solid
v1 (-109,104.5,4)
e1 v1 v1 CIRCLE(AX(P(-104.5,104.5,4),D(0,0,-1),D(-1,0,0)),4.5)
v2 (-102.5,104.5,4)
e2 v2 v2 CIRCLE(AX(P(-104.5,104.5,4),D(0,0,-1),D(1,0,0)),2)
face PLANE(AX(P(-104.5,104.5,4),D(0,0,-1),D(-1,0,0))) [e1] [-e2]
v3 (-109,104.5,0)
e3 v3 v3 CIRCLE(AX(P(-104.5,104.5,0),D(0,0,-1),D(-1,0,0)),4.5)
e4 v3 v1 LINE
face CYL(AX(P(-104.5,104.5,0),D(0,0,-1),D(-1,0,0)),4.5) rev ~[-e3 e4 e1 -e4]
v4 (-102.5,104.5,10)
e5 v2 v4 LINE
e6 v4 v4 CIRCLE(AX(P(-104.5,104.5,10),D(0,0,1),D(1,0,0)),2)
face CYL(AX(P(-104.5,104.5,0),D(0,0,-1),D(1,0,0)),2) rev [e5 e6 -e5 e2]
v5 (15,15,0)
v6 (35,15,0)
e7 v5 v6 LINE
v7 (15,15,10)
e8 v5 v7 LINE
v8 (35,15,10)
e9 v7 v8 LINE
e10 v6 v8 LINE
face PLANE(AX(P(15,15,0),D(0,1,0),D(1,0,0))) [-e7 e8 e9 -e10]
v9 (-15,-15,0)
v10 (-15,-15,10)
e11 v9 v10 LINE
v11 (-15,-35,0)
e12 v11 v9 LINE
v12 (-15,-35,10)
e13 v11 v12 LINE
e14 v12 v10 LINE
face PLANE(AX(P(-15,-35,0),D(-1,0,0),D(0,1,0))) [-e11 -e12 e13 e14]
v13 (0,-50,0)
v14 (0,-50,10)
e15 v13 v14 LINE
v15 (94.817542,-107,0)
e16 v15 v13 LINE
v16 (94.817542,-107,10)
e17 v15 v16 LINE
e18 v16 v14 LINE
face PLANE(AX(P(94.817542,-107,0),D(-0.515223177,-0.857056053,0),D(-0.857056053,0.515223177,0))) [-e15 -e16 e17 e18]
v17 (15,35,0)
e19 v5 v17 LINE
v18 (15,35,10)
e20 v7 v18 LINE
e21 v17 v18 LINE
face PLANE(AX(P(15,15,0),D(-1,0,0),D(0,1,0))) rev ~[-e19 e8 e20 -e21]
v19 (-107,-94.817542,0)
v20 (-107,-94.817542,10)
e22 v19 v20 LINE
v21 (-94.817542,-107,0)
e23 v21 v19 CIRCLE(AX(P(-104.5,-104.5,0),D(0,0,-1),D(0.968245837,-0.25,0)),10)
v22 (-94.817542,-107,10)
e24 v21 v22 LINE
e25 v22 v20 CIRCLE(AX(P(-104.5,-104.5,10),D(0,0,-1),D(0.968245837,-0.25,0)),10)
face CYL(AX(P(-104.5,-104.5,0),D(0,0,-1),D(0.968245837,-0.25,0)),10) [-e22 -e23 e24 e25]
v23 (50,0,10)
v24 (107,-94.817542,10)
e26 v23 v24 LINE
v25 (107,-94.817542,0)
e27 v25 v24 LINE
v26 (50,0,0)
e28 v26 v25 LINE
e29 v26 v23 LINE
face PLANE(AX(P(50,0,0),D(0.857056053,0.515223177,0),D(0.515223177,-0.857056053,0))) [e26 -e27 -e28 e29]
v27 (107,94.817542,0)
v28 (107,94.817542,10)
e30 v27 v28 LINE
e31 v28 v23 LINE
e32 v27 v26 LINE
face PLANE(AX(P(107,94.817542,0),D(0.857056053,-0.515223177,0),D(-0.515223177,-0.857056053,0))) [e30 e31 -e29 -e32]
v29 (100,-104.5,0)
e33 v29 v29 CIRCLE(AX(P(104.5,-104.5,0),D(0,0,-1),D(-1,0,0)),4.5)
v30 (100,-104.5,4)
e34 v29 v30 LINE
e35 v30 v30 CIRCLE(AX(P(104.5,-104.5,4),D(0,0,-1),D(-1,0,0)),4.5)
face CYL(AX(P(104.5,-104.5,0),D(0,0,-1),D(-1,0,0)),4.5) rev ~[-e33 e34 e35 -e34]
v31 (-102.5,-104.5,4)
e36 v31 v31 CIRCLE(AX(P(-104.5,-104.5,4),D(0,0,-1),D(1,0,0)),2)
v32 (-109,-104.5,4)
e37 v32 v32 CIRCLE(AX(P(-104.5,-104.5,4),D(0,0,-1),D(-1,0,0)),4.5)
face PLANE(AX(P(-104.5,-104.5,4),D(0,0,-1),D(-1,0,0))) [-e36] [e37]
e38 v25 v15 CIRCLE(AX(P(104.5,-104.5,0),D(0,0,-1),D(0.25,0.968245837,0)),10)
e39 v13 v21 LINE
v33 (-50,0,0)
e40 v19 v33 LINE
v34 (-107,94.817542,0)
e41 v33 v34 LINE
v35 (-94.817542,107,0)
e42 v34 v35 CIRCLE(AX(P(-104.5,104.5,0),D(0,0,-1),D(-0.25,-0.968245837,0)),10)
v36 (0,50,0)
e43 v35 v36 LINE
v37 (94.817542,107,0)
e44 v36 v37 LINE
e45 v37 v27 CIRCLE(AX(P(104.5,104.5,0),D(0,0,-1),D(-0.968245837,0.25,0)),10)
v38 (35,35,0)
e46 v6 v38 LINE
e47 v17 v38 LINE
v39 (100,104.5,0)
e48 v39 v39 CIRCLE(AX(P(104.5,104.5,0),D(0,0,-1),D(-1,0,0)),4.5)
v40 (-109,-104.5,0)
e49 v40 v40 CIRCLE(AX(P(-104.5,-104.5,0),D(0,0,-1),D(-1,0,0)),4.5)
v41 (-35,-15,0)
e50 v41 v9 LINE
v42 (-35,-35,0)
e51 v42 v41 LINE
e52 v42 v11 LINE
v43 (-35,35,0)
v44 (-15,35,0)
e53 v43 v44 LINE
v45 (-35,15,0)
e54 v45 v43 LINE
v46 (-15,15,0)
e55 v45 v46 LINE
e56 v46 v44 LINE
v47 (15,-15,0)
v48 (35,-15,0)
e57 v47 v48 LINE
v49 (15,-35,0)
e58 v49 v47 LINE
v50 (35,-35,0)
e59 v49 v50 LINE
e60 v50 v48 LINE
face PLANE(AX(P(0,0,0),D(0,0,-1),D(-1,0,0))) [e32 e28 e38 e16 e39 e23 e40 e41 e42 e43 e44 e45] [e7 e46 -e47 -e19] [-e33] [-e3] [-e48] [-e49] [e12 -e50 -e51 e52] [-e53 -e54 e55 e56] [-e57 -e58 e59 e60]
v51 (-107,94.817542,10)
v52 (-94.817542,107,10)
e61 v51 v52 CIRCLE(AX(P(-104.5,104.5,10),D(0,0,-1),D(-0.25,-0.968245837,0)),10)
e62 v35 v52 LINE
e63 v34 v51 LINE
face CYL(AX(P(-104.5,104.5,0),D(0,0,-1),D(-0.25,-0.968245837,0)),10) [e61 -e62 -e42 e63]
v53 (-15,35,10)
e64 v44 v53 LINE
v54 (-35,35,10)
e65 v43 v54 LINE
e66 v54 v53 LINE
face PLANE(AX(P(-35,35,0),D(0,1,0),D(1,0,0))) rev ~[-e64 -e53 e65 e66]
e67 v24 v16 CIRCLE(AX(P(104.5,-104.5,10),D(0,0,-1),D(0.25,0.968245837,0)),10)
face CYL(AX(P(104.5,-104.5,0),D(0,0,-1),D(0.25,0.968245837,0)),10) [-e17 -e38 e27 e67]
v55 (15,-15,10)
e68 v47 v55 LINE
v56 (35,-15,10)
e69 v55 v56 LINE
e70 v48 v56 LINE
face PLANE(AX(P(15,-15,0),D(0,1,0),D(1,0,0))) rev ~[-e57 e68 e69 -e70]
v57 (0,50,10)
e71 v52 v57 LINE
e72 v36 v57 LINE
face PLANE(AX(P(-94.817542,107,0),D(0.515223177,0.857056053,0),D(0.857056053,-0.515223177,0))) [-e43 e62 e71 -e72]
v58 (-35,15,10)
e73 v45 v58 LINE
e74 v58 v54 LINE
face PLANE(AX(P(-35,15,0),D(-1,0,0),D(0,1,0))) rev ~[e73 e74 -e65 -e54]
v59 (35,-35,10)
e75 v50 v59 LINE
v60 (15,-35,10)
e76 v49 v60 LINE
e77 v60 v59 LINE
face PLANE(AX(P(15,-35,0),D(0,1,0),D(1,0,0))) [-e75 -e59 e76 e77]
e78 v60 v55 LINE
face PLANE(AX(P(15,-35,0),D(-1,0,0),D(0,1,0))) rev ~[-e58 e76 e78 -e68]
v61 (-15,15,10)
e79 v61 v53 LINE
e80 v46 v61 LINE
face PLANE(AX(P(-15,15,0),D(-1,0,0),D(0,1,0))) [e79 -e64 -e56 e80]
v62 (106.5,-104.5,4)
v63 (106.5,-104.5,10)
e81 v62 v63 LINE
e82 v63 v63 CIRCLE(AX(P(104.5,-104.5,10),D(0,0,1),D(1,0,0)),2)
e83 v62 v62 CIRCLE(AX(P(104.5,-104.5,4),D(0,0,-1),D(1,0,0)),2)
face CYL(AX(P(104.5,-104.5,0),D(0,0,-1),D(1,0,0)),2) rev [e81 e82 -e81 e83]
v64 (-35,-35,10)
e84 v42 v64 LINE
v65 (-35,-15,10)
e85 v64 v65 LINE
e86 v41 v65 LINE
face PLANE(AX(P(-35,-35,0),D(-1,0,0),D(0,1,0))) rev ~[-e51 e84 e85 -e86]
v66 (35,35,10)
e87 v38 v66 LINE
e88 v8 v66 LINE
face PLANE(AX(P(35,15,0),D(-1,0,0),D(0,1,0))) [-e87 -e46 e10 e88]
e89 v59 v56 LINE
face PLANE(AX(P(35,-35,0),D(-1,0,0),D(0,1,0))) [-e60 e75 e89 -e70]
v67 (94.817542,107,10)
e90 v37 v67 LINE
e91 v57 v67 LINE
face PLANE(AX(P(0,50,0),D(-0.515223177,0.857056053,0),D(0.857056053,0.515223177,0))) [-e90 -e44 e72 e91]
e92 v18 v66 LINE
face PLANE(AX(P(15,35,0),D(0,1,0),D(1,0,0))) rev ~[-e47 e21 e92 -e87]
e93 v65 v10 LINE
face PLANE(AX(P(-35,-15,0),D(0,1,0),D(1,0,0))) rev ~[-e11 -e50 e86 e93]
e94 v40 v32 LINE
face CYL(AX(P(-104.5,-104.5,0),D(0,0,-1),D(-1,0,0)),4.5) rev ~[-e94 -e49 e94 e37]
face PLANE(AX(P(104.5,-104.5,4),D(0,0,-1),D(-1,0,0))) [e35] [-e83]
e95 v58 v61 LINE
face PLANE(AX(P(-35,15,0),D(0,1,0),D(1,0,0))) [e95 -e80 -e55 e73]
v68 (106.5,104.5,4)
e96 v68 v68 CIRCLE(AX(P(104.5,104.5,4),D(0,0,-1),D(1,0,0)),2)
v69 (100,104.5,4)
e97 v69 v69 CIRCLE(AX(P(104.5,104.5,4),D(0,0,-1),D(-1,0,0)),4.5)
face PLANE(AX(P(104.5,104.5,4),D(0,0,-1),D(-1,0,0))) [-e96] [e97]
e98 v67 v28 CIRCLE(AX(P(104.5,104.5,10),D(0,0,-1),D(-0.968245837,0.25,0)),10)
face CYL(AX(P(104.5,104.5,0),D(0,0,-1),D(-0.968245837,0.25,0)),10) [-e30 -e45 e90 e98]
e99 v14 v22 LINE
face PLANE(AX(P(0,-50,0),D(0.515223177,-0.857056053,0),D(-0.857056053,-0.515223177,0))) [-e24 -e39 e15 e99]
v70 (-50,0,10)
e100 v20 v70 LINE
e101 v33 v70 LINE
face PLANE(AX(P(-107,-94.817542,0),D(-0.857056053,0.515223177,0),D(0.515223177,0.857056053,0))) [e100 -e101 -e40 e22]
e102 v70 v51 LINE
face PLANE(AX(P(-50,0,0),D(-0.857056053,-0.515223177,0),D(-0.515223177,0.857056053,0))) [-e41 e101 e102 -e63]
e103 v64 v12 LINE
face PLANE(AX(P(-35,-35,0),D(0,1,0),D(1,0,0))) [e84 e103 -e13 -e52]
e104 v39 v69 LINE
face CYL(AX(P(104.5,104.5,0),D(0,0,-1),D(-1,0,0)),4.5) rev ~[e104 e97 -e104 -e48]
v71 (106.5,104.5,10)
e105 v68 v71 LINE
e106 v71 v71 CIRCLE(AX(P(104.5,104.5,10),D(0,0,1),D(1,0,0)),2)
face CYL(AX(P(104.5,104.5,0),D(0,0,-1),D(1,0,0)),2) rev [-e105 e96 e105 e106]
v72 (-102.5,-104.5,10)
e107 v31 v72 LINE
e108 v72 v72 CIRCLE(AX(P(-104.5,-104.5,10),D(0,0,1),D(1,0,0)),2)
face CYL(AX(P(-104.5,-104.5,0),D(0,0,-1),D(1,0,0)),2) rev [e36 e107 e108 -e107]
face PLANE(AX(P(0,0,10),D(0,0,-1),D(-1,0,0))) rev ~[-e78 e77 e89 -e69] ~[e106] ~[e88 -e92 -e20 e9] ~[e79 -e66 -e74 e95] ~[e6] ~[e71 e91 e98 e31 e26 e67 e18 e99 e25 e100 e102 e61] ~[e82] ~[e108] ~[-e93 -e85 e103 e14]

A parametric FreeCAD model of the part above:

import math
import FreeCAD as App
import Part
import Sketcher

V = App.Vector
Q = App.Units.Quantity


def add_polygon(sketch, points):
    """Adds a closed chain of lines whose ends are joined by coincident constraints."""
    first, n = sketch.GeometryCount, len(points)
    for a, b in zip(points, points[1:] + points[:1]):
        sketch.addGeometry(Part.LineSegment(App.Vector(*a, 0), App.Vector(*b, 0)), False)
    for i in range(n):
        sketch.addConstraint(Sketcher.Constraint("Coincident", first + i, 2, first + (i + 1) % n, 1))

doc = App.newDocument("Part")
body = doc.addObject("PartDesign::Body", "Body")

# Sketch on XY plane
sketch1 = body.newObject("Sketcher::SketchObject", "Sketch")
sketch1.AttachmentSupport = (doc.getObject("XY_Plane"), [""])
sketch1.MapMode = "FlatFace"
sketch1.addGeometry(Part.LineSegment(V(50, 0, 0), V(107, 94.8, 0)), False)  # 0
sketch1.addGeometry(Part.ArcOfCircle(Part.Circle(V(104.5, 104.5, 0), V(0, 0, 1), 10), math.radians(-76), math.radians(166)), False)  # 1
sketch1.addGeometry(Part.LineSegment(V(94.8, 107, 0), V(0, 50, 0)), False)  # 2
sketch1.addGeometry(Part.LineSegment(V(0, 50, 0), V(-94.8, 107, 0)), False)  # 3
sketch1.addGeometry(Part.ArcOfCircle(Part.Circle(V(-104.5, 104.5, 0), V(0, 0, 1), 10), math.radians(14), math.radians(256)), False)  # 4
sketch1.addGeometry(Part.LineSegment(V(-107, 94.8, 0), V(-50, 0, 0)), False)  # 5
sketch1.addGeometry(Part.LineSegment(V(-50, 0, 0), V(-107, -94.8, 0)), False)  # 6
sketch1.addGeometry(Part.ArcOfCircle(Part.Circle(V(-104.5, -104.5, 0), V(0, 0, 1), 10), math.radians(104), math.radians(346)), False)  # 7
sketch1.addGeometry(Part.LineSegment(V(-94.8, -107, 0), V(0, -50, 0)), False)  # 8
sketch1.addGeometry(Part.LineSegment(V(0, -50, 0), V(94.8, -107, 0)), False)  # 9
sketch1.addGeometry(Part.ArcOfCircle(Part.Circle(V(104.5, -104.5, 0), V(0, 0, 1), 10), math.radians(-166), math.radians(76)), False)  # 10
sketch1.addGeometry(Part.LineSegment(V(107, -94.8, 0), V(50, 0, 0)), False)  # 11
sketch1.addGeometry(Part.Circle(V(104.5, -104.5, 0), V(0, 0, 1), 2), False)  # 12
add_polygon(sketch1, [(15, -35), (15, -15), (35, -15), (35, -35)])  # lines 13-16
sketch1.addGeometry(Part.Circle(V(-104.5, -104.5, 0), V(0, 0, 1), 2), False)  # 17
add_polygon(sketch1, [(-35, -35), (-35, -15), (-15, -15), (-15, -35)])  # lines 18-21
add_polygon(sketch1, [(15, 15), (15, 35), (35, 35), (35, 15)])  # lines 22-25
sketch1.addGeometry(Part.Circle(V(104.5, 104.5, 0), V(0, 0, 1), 2), False)  # 26
add_polygon(sketch1, [(-35, 15), (-35, 35), (-15, 35), (-15, 15)])  # lines 27-30
sketch1.addGeometry(Part.Circle(V(-104.5, 104.5, 0), V(0, 0, 1), 2), False)  # 31
sketch1.addConstraint([
    Sketcher.Constraint("Coincident", 0, 2, 1, 1),
    Sketcher.Constraint("Coincident", 1, 2, 2, 1),
    Sketcher.Constraint("Coincident", 2, 2, 3, 1),
    Sketcher.Constraint("Coincident", 3, 2, 4, 1),
    Sketcher.Constraint("Coincident", 4, 2, 5, 1),
    Sketcher.Constraint("Coincident", 5, 2, 6, 1),
    Sketcher.Constraint("Coincident", 6, 2, 7, 1),
    Sketcher.Constraint("Coincident", 7, 2, 8, 1),
    Sketcher.Constraint("Coincident", 8, 2, 9, 1),
    Sketcher.Constraint("Coincident", 9, 2, 10, 1),
    Sketcher.Constraint("Coincident", 10, 2, 11, 1),
    Sketcher.Constraint("Coincident", 11, 2, 0, 1),
    Sketcher.Constraint("Vertical", 13),
    Sketcher.Constraint("Horizontal", 14),
    Sketcher.Constraint("Vertical", 15),
    Sketcher.Constraint("Horizontal", 16),
    Sketcher.Constraint("Vertical", 18),
    Sketcher.Constraint("Horizontal", 19),
    Sketcher.Constraint("Vertical", 20),
    Sketcher.Constraint("Horizontal", 21),
    Sketcher.Constraint("Vertical", 22),
    Sketcher.Constraint("Horizontal", 23),
    Sketcher.Constraint("Vertical", 24),
    Sketcher.Constraint("Horizontal", 25),
    Sketcher.Constraint("Vertical", 27),
    Sketcher.Constraint("Horizontal", 28),
    Sketcher.Constraint("Vertical", 29),
    Sketcher.Constraint("Horizontal", 30),
    Sketcher.Constraint("Coincident", 12, 3, 10, 3),
    Sketcher.Constraint("Coincident", 17, 3, 7, 3),
    Sketcher.Constraint("Coincident", 26, 3, 1, 3),
    Sketcher.Constraint("Coincident", 31, 3, 4, 3),
    Sketcher.Constraint("Equal", 1, 4),
    Sketcher.Constraint("Equal", 4, 7),
    Sketcher.Constraint("Equal", 7, 10),
    Sketcher.Constraint("Equal", 12, 17),
    Sketcher.Constraint("Equal", 17, 26),
    Sketcher.Constraint("Equal", 26, 31),
    Sketcher.Constraint("Symmetric", 1, 3, 7, 3, -1, 1),
    Sketcher.Constraint("Symmetric", 4, 3, 10, 3, -1, 1),
    Sketcher.Constraint("Symmetric", 2, 2, 8, 2, -1, 1),
    Sketcher.Constraint("Symmetric", 5, 2, 11, 2, -1, 1),
    Sketcher.Constraint("Symmetric", 20, 2, 22, 2, -1, 1),
    Sketcher.Constraint("Symmetric", 18, 2, 24, 2, -1, 1),
    Sketcher.Constraint("Symmetric", 15, 2, 27, 2, -1, 1),
    Sketcher.Constraint("Symmetric", 13, 2, 29, 2, -1, 1),
    Sketcher.Constraint("Symmetric", 1, 3, 4, 3, -2),
    Sketcher.Constraint("Symmetric", 14, 2, 18, 2, -2),
    Sketcher.Constraint("Symmetric", 16, 2, 20, 2, -2),
    Sketcher.Constraint("PointOnObject", 2, 2, -2),
    Sketcher.Constraint("PointOnObject", 5, 2, -1),
    Sketcher.Constraint("Perpendicular", 0, 3),
    Sketcher.Constraint("Perpendicular", 2, 5),
    Sketcher.Constraint("Perpendicular", 3, 6),
    Sketcher.Constraint("Perpendicular", 5, 8),
    Sketcher.Constraint("Perpendicular", 6, 9),
    Sketcher.Constraint("Perpendicular", 8, 11),
    Sketcher.Constraint("Horizontal", 1, 2, 3, 2),
    Sketcher.Constraint("Equal", 30, 13),
    Sketcher.Constraint("Equal", 0, 2),
    Sketcher.Constraint("Diameter", 12, Q("4 mm")),
    Sketcher.Constraint("Radius", 1, Q("10 mm")),
    Sketcher.Constraint("DistanceX", 14, 1, 14, 2, Q("20 mm")),
    Sketcher.Constraint("DistanceX", -1, 1, 0, 2, Q("107 mm")),
    Sketcher.Constraint("DistanceY", -1, 1, 1, 2, Q("107 mm")),
    Sketcher.Constraint("DistanceY", -1, 1, 2, 2, Q("50 mm")),
    Sketcher.Constraint("DistanceX", -1, 1, 13, 2, Q("15 mm")),
    Sketcher.Constraint("DistanceY", 13, 2, -1, 1, Q("15 mm")),
    Sketcher.Constraint("DistanceX", 4, 3, 1, 3, Q("209 mm")),
])
pad1 = body.newObject("PartDesign::Pad", "Pad")
pad1.Profile = sketch1
pad1.Length = 10

# Sketch on XY plane
sketch2 = body.newObject("Sketcher::SketchObject", "Sketch001")
sketch2.AttachmentSupport = (doc.getObject("XY_Plane"), [""])
sketch2.MapMode = "FlatFace"
sketch2.addGeometry([
    Part.Circle(V(104.5, 104.5, 0), V(0, 0, 1), 4.5),
    Part.Circle(V(-104.5, 104.5, 0), V(0, 0, 1), 4.5),
    Part.Circle(V(-104.5, -104.5, 0), V(0, 0, 1), 4.5),
    Part.Circle(V(104.5, -104.5, 0), V(0, 0, 1), 4.5),
], False)
sketch2.addConstraint([
    Sketcher.Constraint("Equal", 0, 1),
    Sketcher.Constraint("Equal", 1, 2),
    Sketcher.Constraint("Equal", 2, 3),
    Sketcher.Constraint("Symmetric", 0, 3, 2, 3, -1, 1),
    Sketcher.Constraint("Symmetric", 1, 3, 3, 3, -1, 1),
    Sketcher.Constraint("Symmetric", 0, 3, 1, 3, -2),
    Sketcher.Constraint("Diameter", 0, Q("9 mm")),
    Sketcher.Constraint("DistanceX", 1, 3, 0, 3, Q("209 mm")),
    Sketcher.Constraint("DistanceY", 2, 3, 1, 3, Q("209 mm")),
])
pocket1 = body.newObject("PartDesign::Pocket", "Pocket")
pocket1.Profile = sketch2
pocket1.Length = 4
pocket1.Reversed = True

doc.recompute()
